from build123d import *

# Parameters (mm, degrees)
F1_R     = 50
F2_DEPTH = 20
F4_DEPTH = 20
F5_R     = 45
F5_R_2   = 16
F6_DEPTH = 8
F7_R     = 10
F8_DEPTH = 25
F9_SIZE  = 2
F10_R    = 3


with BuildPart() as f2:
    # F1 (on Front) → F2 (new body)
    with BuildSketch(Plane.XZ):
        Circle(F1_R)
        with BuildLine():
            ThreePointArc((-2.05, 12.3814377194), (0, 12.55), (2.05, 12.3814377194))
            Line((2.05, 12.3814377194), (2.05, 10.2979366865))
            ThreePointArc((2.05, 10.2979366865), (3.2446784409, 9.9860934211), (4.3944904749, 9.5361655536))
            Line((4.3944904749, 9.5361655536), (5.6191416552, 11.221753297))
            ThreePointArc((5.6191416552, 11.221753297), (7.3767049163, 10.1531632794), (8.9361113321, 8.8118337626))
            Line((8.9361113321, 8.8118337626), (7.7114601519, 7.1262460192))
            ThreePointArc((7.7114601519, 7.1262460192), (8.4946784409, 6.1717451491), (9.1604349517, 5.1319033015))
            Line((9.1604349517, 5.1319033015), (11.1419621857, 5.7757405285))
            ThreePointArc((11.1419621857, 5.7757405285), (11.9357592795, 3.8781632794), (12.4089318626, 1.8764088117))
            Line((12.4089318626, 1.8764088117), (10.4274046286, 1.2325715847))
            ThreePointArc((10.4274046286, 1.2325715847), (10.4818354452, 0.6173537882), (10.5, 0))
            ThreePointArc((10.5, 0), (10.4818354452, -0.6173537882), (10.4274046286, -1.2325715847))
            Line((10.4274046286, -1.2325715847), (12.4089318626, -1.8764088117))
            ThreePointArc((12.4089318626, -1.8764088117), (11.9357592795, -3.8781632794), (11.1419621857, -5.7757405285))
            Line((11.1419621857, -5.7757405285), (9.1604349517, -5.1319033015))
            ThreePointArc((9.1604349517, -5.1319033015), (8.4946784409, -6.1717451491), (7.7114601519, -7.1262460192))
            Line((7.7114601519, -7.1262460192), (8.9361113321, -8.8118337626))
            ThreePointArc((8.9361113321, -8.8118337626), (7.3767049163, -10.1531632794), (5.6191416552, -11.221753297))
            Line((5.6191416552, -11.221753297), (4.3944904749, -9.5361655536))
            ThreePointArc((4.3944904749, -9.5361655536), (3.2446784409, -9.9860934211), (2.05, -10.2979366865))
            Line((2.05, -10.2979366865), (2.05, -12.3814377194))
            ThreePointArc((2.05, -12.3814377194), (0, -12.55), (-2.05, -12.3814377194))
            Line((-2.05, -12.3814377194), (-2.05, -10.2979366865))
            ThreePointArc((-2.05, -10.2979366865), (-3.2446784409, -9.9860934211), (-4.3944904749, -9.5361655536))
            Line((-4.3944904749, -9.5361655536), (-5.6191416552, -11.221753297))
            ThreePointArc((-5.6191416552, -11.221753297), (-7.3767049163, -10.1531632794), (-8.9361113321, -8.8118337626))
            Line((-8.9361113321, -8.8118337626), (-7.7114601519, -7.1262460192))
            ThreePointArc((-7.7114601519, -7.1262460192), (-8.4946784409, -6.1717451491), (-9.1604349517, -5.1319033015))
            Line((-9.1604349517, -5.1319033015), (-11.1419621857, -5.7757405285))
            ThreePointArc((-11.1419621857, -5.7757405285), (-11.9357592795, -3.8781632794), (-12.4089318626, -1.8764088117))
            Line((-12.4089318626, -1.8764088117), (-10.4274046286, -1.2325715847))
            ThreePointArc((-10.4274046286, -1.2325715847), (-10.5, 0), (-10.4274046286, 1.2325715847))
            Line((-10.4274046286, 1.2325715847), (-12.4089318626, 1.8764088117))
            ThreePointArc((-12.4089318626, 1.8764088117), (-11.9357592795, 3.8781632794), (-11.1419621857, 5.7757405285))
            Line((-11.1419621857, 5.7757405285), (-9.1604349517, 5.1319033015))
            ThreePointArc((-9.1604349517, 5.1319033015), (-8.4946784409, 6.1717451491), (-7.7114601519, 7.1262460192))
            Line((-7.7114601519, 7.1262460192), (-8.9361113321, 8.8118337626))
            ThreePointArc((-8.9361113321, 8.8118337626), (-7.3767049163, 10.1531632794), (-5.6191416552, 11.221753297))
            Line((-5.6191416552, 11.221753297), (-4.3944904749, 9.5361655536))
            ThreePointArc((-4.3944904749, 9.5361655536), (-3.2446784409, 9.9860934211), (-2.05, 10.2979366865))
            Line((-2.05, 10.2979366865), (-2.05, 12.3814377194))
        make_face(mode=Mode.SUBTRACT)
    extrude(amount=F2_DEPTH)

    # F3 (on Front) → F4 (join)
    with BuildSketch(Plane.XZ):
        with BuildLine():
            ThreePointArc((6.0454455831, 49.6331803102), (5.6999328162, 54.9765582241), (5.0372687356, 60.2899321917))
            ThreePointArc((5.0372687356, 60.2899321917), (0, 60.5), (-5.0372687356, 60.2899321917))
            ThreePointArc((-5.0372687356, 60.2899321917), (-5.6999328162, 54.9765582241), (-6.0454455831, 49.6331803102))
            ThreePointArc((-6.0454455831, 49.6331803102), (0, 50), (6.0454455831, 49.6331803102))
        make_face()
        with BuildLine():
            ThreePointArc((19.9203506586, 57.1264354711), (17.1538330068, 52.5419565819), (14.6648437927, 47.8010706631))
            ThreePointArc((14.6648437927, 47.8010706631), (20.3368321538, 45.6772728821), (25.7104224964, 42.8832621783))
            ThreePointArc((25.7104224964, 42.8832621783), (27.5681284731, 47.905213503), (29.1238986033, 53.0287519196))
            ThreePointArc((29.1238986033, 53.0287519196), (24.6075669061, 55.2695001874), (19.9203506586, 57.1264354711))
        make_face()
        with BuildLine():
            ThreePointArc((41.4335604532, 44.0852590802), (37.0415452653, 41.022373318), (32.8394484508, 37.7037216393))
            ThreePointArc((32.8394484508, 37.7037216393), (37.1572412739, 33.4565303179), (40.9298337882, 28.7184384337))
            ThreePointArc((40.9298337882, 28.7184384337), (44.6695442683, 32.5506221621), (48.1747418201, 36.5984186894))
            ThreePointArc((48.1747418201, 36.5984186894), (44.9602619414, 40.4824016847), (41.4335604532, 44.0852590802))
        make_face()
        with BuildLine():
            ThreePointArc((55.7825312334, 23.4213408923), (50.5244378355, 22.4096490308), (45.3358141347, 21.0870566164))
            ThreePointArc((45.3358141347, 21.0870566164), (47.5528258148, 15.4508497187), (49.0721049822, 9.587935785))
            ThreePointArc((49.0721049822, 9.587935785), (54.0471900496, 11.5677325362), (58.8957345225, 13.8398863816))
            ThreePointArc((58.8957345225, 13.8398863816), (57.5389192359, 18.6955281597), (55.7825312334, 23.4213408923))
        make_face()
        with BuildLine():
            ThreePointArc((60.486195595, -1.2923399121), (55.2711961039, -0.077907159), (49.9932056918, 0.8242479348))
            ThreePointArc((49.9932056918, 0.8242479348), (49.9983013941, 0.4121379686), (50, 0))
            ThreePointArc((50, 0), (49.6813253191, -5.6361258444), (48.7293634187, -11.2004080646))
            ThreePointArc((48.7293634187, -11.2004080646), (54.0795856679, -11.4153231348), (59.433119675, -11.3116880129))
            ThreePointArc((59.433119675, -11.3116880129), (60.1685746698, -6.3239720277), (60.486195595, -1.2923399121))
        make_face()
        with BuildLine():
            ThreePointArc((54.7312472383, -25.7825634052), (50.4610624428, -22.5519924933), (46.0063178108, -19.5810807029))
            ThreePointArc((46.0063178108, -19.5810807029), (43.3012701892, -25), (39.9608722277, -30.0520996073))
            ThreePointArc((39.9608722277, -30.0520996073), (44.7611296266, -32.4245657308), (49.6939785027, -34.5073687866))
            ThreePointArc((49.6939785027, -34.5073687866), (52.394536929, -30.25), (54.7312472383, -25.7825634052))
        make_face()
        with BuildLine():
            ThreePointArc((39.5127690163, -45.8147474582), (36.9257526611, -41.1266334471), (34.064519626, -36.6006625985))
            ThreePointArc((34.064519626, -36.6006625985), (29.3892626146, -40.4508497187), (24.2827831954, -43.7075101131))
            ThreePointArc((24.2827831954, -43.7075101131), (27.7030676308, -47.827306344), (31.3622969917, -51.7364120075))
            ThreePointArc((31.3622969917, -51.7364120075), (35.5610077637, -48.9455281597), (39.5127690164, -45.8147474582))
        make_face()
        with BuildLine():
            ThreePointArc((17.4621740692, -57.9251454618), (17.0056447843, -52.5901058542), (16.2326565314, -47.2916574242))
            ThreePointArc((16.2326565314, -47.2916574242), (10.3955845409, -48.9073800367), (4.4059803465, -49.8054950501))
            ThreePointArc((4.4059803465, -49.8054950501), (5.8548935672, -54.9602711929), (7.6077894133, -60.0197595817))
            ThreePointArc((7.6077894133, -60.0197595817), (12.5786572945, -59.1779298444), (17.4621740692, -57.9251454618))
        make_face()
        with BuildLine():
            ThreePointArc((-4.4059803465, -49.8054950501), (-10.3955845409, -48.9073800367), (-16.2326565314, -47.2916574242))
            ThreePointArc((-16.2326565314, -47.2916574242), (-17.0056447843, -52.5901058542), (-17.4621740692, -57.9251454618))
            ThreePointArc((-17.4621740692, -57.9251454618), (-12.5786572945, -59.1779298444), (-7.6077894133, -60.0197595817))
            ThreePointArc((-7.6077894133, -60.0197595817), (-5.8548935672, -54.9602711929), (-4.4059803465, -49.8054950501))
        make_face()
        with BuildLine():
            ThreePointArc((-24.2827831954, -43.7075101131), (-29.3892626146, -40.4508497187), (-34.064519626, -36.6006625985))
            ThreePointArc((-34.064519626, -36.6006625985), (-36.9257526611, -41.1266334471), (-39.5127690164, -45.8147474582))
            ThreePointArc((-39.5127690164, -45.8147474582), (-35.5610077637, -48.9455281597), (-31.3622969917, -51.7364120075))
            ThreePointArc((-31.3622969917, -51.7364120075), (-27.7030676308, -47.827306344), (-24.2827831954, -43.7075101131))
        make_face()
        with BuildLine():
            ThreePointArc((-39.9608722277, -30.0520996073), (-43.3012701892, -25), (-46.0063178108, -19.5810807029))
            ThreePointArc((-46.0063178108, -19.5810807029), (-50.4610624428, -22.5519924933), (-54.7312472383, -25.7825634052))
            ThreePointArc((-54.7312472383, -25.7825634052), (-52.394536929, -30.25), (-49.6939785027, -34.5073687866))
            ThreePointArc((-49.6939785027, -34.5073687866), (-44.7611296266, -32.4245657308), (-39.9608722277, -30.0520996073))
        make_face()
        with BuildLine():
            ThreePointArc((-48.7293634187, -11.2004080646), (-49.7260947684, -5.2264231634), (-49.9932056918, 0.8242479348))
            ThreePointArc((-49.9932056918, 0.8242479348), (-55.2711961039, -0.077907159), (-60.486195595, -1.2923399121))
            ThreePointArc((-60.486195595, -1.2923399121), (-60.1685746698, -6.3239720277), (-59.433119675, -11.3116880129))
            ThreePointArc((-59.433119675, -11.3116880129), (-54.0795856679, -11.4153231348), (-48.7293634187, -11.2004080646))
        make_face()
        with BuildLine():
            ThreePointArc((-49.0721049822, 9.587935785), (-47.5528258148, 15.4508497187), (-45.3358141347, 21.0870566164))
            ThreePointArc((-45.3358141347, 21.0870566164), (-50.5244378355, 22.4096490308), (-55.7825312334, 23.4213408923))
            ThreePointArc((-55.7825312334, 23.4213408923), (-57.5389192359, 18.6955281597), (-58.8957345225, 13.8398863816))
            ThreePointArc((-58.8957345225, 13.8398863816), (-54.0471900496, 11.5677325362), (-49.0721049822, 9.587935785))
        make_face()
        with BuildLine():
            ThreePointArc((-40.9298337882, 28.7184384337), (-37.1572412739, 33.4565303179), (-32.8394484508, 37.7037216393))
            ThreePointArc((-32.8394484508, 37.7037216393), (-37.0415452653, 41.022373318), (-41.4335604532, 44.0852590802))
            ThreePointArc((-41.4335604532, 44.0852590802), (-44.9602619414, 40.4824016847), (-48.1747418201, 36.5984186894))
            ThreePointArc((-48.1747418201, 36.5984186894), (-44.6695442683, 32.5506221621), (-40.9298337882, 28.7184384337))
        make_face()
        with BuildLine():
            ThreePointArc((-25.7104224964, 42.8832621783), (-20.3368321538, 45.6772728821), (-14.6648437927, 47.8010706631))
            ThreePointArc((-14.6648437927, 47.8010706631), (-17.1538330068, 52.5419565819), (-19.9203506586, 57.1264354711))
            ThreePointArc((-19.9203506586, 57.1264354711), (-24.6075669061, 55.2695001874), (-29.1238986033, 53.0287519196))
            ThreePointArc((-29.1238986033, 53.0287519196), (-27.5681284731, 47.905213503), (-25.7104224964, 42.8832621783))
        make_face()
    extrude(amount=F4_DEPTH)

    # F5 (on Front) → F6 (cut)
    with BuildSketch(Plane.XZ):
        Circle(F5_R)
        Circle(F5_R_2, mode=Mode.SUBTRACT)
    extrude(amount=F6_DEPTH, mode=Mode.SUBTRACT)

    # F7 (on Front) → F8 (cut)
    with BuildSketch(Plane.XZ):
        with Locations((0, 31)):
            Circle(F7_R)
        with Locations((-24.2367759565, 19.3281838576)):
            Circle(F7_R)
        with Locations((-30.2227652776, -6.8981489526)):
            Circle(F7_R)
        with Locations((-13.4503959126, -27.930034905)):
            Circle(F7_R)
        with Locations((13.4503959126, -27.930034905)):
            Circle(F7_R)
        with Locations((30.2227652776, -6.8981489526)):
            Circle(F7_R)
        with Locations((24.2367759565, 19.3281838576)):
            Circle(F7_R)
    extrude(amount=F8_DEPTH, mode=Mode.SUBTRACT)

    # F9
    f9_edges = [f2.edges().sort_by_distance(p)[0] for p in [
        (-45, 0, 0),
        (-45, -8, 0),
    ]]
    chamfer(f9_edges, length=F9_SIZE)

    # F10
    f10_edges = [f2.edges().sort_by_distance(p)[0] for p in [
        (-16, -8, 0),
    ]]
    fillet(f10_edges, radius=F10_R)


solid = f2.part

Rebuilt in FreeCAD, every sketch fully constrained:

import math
import FreeCAD as App
import Part
import Sketcher

V = App.Vector
Q = App.Units.Quantity


def edges_at(feature, points):
    """Names of the edges that pass closest to the given points."""
    edges = feature.Shape.Edges
    near = lambda p: min(range(len(edges)), key=lambda i: edges[i].distToShape(Part.Vertex(*p))[0])
    return sorted({f"Edge{near(p) + 1}" for p in points})

doc = App.newDocument("Part")
body = doc.addObject("PartDesign::Body", "Body")

# Sketch on XZ plane
sketch1 = body.newObject("Sketcher::SketchObject", "Sketch")
sketch1.AttachmentSupport = (doc.getObject("XZ_Plane"), [""])
sketch1.MapMode = "FlatFace"
sketch1.addGeometry([
    Part.Circle(V(0, 0, 0), V(0, 0, 1), 50),  # 0
    Part.LineSegment(V(-2, 10.3, 0), V(-2, 12.4, 0)),  # 1
    Part.ArcOfCircle(Part.Circle(V(0, 0, 0), V(0, 0, 1), 12.5), math.radians(80.6), math.radians(99.4)),  # 2
    Part.LineSegment(V(2, 12.4, 0), V(2, 10.3, 0)),  # 3
    Part.ArcOfCircle(Part.Circle(V(0, 0, 0), V(0, 0, 1), 10.5), math.radians(65.26), math.radians(78.74)),  # 4
    Part.LineSegment(V(4.4, 9.5, 0), V(5.6, 11.2, 0)),  # 5
    Part.ArcOfCircle(Part.Circle(V(0, 0, 0), V(0, 0, 1), 12.5), math.radians(44.6), math.radians(63.4)),  # 6
    Part.LineSegment(V(8.9, 8.8, 0), V(7.7, 7.1, 0)),  # 7
    Part.ArcOfCircle(Part.Circle(V(0, 0, 0), V(0, 0, 1), 10.5), math.radians(29.26), math.radians(42.74)),  # 8
    Part.LineSegment(V(9.2, 5.1, 0), V(11.1, 5.8, 0)),  # 9
    Part.ArcOfCircle(Part.Circle(V(0, 0, 0), V(0, 0, 1), 12.6), math.radians(8.6), math.radians(27.4)),  # 10
    Part.LineSegment(V(12.4, 1.9, 0), V(10.4, 1.2, 0)),  # 11
    Part.ArcOfCircle(Part.Circle(V(0, 0, 0), V(0, 0, 1), 10.5), math.radians(0), math.radians(6.74)),  # 12
    Part.ArcOfCircle(Part.Circle(V(0, 0, 0), V(0, 0, 1), 10.5), math.radians(-6.74), math.radians(0)),  # 13
    Part.LineSegment(V(10.4, -1.2, 0), V(12.4, -1.9, 0)),  # 14
    Part.ArcOfCircle(Part.Circle(V(0, 0, 0), V(0, 0, 1), 12.6), math.radians(-27.4), math.radians(-8.6)),  # 15
    Part.LineSegment(V(11.1, -5.8, 0), V(9.2, -5.1, 0)),  # 16
    Part.ArcOfCircle(Part.Circle(V(0, 0, 0), V(0, 0, 1), 10.5), math.radians(-42.74), math.radians(-29.26)),  # 17
    Part.LineSegment(V(7.7, -7.1, 0), V(8.9, -8.8, 0)),  # 18
    Part.ArcOfCircle(Part.Circle(V(0, 0, 0), V(0, 0, 1), 12.5), math.radians(-63.4), math.radians(-44.6)),  # 19
    Part.LineSegment(V(5.6, -11.2, 0), V(4.4, -9.5, 0)),  # 20
    Part.ArcOfCircle(Part.Circle(V(0, 0, 0), V(0, 0, 1), 10.5), math.radians(-78.74), math.radians(-65.26)),  # 21
    Part.LineSegment(V(2, -10.3, 0), V(2, -12.4, 0)),  # 22
    Part.ArcOfCircle(Part.Circle(V(0, 0, 0), V(0, 0, 1), 12.5), math.radians(-99.4), math.radians(-80.6)),  # 23
    Part.LineSegment(V(-2, -12.4, 0), V(-2, -10.3, 0)),  # 24
    Part.ArcOfCircle(Part.Circle(V(0, 0, 0), V(0, 0, 1), 10.5), math.radians(-114.74), math.radians(-101.26)),  # 25
    Part.LineSegment(V(-4.4, -9.5, 0), V(-5.6, -11.2, 0)),  # 26
    Part.ArcOfCircle(Part.Circle(V(0, 0, 0), V(0, 0, 1), 12.5), math.radians(-135.4), math.radians(-116.6)),  # 27
    Part.LineSegment(V(-8.9, -8.8, 0), V(-7.7, -7.1, 0)),  # 28
    Part.ArcOfCircle(Part.Circle(V(0, 0, 0), V(0, 0, 1), 10.5), math.radians(-150.74), math.radians(-137.26)),  # 29
    Part.LineSegment(V(-9.2, -5.1, 0), V(-11.1, -5.8, 0)),  # 30
    Part.ArcOfCircle(Part.Circle(V(0, 0, 0), V(0, 0, 1), 12.6), math.radians(-171.4), math.radians(-152.6)),  # 31
    Part.LineSegment(V(-12.4, -1.9, 0), V(-10.4, -1.2, 0)),  # 32
    Part.ArcOfCircle(Part.Circle(V(0, 0, 0), V(0, 0, 1), 10.5), math.radians(173.26), math.radians(186.74)),  # 33
    Part.LineSegment(V(-10.4, 1.2, 0), V(-12.4, 1.9, 0)),  # 34
    Part.ArcOfCircle(Part.Circle(V(0, 0, 0), V(0, 0, 1), 12.6), math.radians(152.6), math.radians(171.4)),  # 35
    Part.LineSegment(V(-11.1, 5.8, 0), V(-9.2, 5.1, 0)),  # 36
    Part.ArcOfCircle(Part.Circle(V(0, 0, 0), V(0, 0, 1), 10.5), math.radians(137.26), math.radians(150.74)),  # 37
    Part.LineSegment(V(-7.7, 7.1, 0), V(-8.9, 8.8, 0)),  # 38
    Part.ArcOfCircle(Part.Circle(V(0, 0, 0), V(0, 0, 1), 12.5), math.radians(116.6), math.radians(135.4)),  # 39
    Part.LineSegment(V(-5.6, 11.2, 0), V(-4.4, 9.5, 0)),  # 40
    Part.ArcOfCircle(Part.Circle(V(0, 0, 0), V(0, 0, 1), 10.5), math.radians(101.26), math.radians(114.74)),  # 41
], False)
sketch1.addConstraint([
    Sketcher.Constraint("Coincident", 1, 2, 2, 2),
    Sketcher.Constraint("Coincident", 2, 1, 3, 1),
    Sketcher.Constraint("Coincident", 3, 2, 4, 2),
    Sketcher.Constraint("Coincident", 4, 1, 5, 1),
    Sketcher.Constraint("Coincident", 5, 2, 6, 2),
    Sketcher.Constraint("Coincident", 6, 1, 7, 1),
    Sketcher.Constraint("Coincident", 7, 2, 8, 2),
    Sketcher.Constraint("Coincident", 8, 1, 9, 1),
    Sketcher.Constraint("Coincident", 9, 2, 10, 2),
    Sketcher.Constraint("Coincident", 10, 1, 11, 1),
    Sketcher.Constraint("Coincident", 11, 2, 12, 2),
    Sketcher.Constraint("Tangent", 12, 1, 13, 2),
    Sketcher.Constraint("Coincident", 13, 1, 14, 1),
    Sketcher.Constraint("Coincident", 14, 2, 15, 2),
    Sketcher.Constraint("Coincident", 15, 1, 16, 1),
    Sketcher.Constraint("Coincident", 16, 2, 17, 2),
    Sketcher.Constraint("Coincident", 17, 1, 18, 1),
    Sketcher.Constraint("Coincident", 18, 2, 19, 2),
    Sketcher.Constraint("Coincident", 19, 1, 20, 1),
    Sketcher.Constraint("Coincident", 20, 2, 21, 2),
    Sketcher.Constraint("Coincident", 21, 1, 22, 1),
    Sketcher.Constraint("Coincident", 22, 2, 23, 2),
    Sketcher.Constraint("Coincident", 23, 1, 24, 1),
    Sketcher.Constraint("Coincident", 24, 2, 25, 2),
    Sketcher.Constraint("Coincident", 25, 1, 26, 1),
    Sketcher.Constraint("Coincident", 26, 2, 27, 2),
    Sketcher.Constraint("Coincident", 27, 1, 28, 1),
    Sketcher.Constraint("Coincident", 28, 2, 29, 2),
    Sketcher.Constraint("Coincident", 29, 1, 30, 1),
    Sketcher.Constraint("Coincident", 30, 2, 31, 2),
    Sketcher.Constraint("Coincident", 31, 1, 32, 1),
    Sketcher.Constraint("Coincident", 32, 2, 33, 2),
    Sketcher.Constraint("Coincident", 33, 1, 34, 1),
    Sketcher.Constraint("Coincident", 34, 2, 35, 2),
    Sketcher.Constraint("Coincident", 35, 1, 36, 1),
    Sketcher.Constraint("Coincident", 36, 2, 37, 2),
    Sketcher.Constraint("Coincident", 37, 1, 38, 1),
    Sketcher.Constraint("Coincident", 38, 2, 39, 2),
    Sketcher.Constraint("Coincident", 39, 1, 40, 1),
    Sketcher.Constraint("Coincident", 40, 2, 41, 2),
    Sketcher.Constraint("Coincident", 41, 1, 1, 1),
    Sketcher.Constraint("Vertical", 1),
    Sketcher.Constraint("Vertical", 3),
    Sketcher.Constraint("Vertical", 22),
    Sketcher.Constraint("Vertical", 24),
    Sketcher.Constraint("Coincident", 0, 3, -1, 1),
    Sketcher.Constraint("Coincident", 2, 3, -1, 1),
    Sketcher.Constraint("Coincident", 4, 3, -1, 1),
    Sketcher.Constraint("Coincident", 6, 3, -1, 1),
    Sketcher.Constraint("Coincident", 8, 3, -1, 1),
    Sketcher.Constraint("Coincident", 10, 3, -1, 1),
    Sketcher.Constraint("Coincident", 12, 3, -1, 1),
    Sketcher.Constraint("Coincident", 15, 3, -1, 1),
    Sketcher.Constraint("Coincident", 17, 3, -1, 1),
    Sketcher.Constraint("Coincident", 19, 3, -1, 1),
    Sketcher.Constraint("Coincident", 21, 3, -1, 1),
    Sketcher.Constraint("Coincident", 23, 3, -1, 1),
    Sketcher.Constraint("Coincident", 25, 3, -1, 1),
    Sketcher.Constraint("Coincident", 27, 3, -1, 1),
    Sketcher.Constraint("Coincident", 29, 3, -1, 1),
    Sketcher.Constraint("Coincident", 31, 3, -1, 1),
    Sketcher.Constraint("Coincident", 33, 3, -1, 1),
    Sketcher.Constraint("Coincident", 35, 3, -1, 1),
    Sketcher.Constraint("Coincident", 37, 3, -1, 1),
    Sketcher.Constraint("Coincident", 39, 3, -1, 1),
    Sketcher.Constraint("Coincident", 41, 3, -1, 1),
    Sketcher.Constraint("Equal", 2, 6),
    Sketcher.Constraint("Equal", 4, 8),
    Sketcher.Constraint("Equal", 6, 10),
    Sketcher.Constraint("Equal", 8, 12),
    Sketcher.Constraint("Equal", 12, 13),
    Sketcher.Constraint("Equal", 10, 15),
    Sketcher.Constraint("Equal", 13, 17),
    Sketcher.Constraint("Equal", 15, 19),
    Sketcher.Constraint("Equal", 17, 21),
    Sketcher.Constraint("Equal", 19, 23),
    Sketcher.Constraint("Equal", 21, 25),
    Sketcher.Constraint("Equal", 23, 27),
    Sketcher.Constraint("Equal", 25, 29),
    Sketcher.Constraint("Equal", 27, 31),
    Sketcher.Constraint("Equal", 29, 33),
    Sketcher.Constraint("Equal", 31, 35),
    Sketcher.Constraint("Equal", 33, 37),
    Sketcher.Constraint("Equal", 35, 39),
    Sketcher.Constraint("Equal", 37, 41),
    Sketcher.Constraint("PointOnObject", 12, 1, -1),
    Sketcher.Constraint("Parallel", 5, 7),
    Sketcher.Constraint("Parallel", 9, 11),
    Sketcher.Constraint("Parallel", 14, 16),
    Sketcher.Constraint("Parallel", 18, 20),
    Sketcher.Constraint("Parallel", 7, 26),
    Sketcher.Constraint("Parallel", 26, 28),
    Sketcher.Constraint("Parallel", 11, 30),
    Sketcher.Constraint("Parallel", 30, 32),
    Sketcher.Constraint("Parallel", 16, 34),
    Sketcher.Constraint("Parallel", 34, 36),
    Sketcher.Constraint("Parallel", 20, 38),
    Sketcher.Constraint("Parallel", 38, 40),
    Sketcher.Constraint("Horizontal", 1, 2, 2, 1),
    Sketcher.Constraint("Horizontal", 22, 2, 23, 1),
    Sketcher.Constraint("Horizontal", 20, 2, 25, 1),
    Sketcher.Constraint("Horizontal", 19, 1, 26, 2),
    Sketcher.Constraint("Horizontal", 18, 2, 27, 1),
    Sketcher.Constraint("Horizontal", 16, 2, 29, 1),
    Sketcher.Constraint("Horizontal", 15, 1, 30, 2),
    Sketcher.Constraint("Horizontal", 14, 2, 31, 1),
    Sketcher.Constraint("Horizontal", 11, 2, 33, 1),
    Sketcher.Constraint("Horizontal", 9, 2, 35, 1),
    Sketcher.Constraint("Horizontal", 7, 2, 37, 1),
    Sketcher.Constraint("Horizontal", 5, 2, 39, 1),
    Sketcher.Constraint("Vertical", 11, 2, 13, 1),
    Sketcher.Constraint("Vertical", 9, 2, 15, 1),
    Sketcher.Constraint("Vertical", 7, 2, 17, 1),
    Sketcher.Constraint("Vertical", 5, 2, 19, 1),
    Sketcher.Constraint("Vertical", 3, 2, 21, 1),
    Sketcher.Constraint("Equal", 5, 7),
    Sketcher.Constraint("Equal", 7, 9),
    Sketcher.Constraint("Equal", 9, 11),
    Sketcher.Constraint("Diameter", 0, 100.0),
    Sketcher.Constraint("Radius", 4, 10.5),
    Sketcher.Constraint("Angle", 5, Q("54 deg")),
    Sketcher.Constraint("Angle", 9, Q("18 deg")),
    Sketcher.Constraint("Radius", 2, 12.55),
    Sketcher.Constraint("DistanceX", 1, 2, -1, 1, 2.05),
    Sketcher.Constraint("Distance", 5, 2.083501),
])
pad1 = body.newObject("PartDesign::Pad", "Pad")
pad1.Profile = sketch1
pad1.Length = 20

# Sketch on XZ plane
sketch2 = body.newObject("Sketcher::SketchObject", "Sketch001")
sketch2.AttachmentSupport = (doc.getObject("XZ_Plane"), [""])
sketch2.MapMode = "FlatFace"
sketch2.addGeometry([
    Part.ArcOfCircle(Part.Circle(V(-83.9, 46.5, 0), V(0, 0, 1), 90), math.radians(2), math.radians(8.81)),  # 0
    Part.ArcOfCircle(Part.Circle(V(0, 0, 0), V(0, 0, 1), 60.5), math.radians(85.22), math.radians(94.78)),  # 1
    Part.ArcOfCircle(Part.Circle(V(83.9, 46.5, 0), V(0, 0, 1), 90), math.radians(171.19), math.radians(178)),  # 2
    Part.ArcOfCircle(Part.Circle(V(0, 0, 0), V(0, 0, 1), 50), math.radians(83.06), math.radians(96.94)),  # 3
    Part.ArcOfCircle(Part.Circle(V(95.6, 8.4, 0), V(0, 0, 1), 90), math.radians(147.19), math.radians(154)),  # 4
    Part.ArcOfCircle(Part.Circle(V(0, 0, 0), V(0, 0, 1), 50), math.radians(59.06), math.radians(72.94)),  # 5
    Part.ArcOfCircle(Part.Circle(V(-57.7, 76.6, 0), V(0, 0, 1), 90), math.radians(-22), math.radians(-15.19)),  # 6
    Part.ArcOfCircle(Part.Circle(V(0, 0, 0), V(0, 0, 1), 60.5), math.radians(61.22), math.radians(70.78)),  # 7
    Part.ArcOfCircle(Part.Circle(V(90.7, -31.2, 0), V(0, 0, 1), 90), math.radians(123.19), math.radians(130)),  # 8
    Part.ArcOfCircle(Part.Circle(V(0, 0, 0), V(0, 0, 1), 50), math.radians(35.06), math.radians(48.94)),  # 9
    Part.ArcOfCircle(Part.Circle(V(-21.6, 93.5, 0), V(0, 0, 1), 90), math.radians(-46), math.radians(-39.19)),  # 10
    Part.ArcOfCircle(Part.Circle(V(0, 0, 0), V(0, 0, 1), 60.5), math.radians(37.22), math.radians(46.78)),  # 11
    Part.ArcOfCircle(Part.Circle(V(70.2, -65.4, 0), V(0, 0, 1), 90), math.radians(99.19), math.radians(106)),  # 12
    Part.ArcOfCircle(Part.Circle(V(0, 0, 0), V(0, 0, 1), 50), math.radians(11.06), math.radians(24.94)),  # 13
    Part.ArcOfCircle(Part.Circle(V(18.3, 94.2, 0), V(0, 0, 1), 90), math.radians(-70), math.radians(-63.19)),  # 14
    Part.ArcOfCircle(Part.Circle(V(0, 0, 0), V(0, 0, 1), 60.5), math.radians(13.22), math.radians(22.78)),  # 15
    Part.ArcOfCircle(Part.Circle(V(37.5, -88.3, 0), V(0, 0, 1), 90), math.radians(75.19), math.radians(82)),  # 16
    Part.ArcOfCircle(Part.Circle(V(0, 0, 0), V(0, 0, 1), 50), math.radians(0), math.radians(0.94)),  # 17
    Part.ArcOfCircle(Part.Circle(V(0, 0, 0), V(0, 0, 1), 50), math.radians(-12.94), math.radians(0)),  # 18
    Part.ArcOfCircle(Part.Circle(V(55, 78.6, 0), V(0, 0, 1), 90), math.radians(-94), math.radians(-87.19)),  # 19
    Part.ArcOfCircle(Part.Circle(V(0, 0, 0), V(0, 0, 1), 60.5), math.radians(-10.78), math.radians(-1.22)),  # 20
    Part.ArcOfCircle(Part.Circle(V(-1.7, -95.9, 0), V(0, 0, 1), 90), math.radians(51.19), math.radians(58)),  # 21
    Part.ArcOfCircle(Part.Circle(V(0, 0, 0), V(0, 0, 1), 50), math.radians(-36.94), math.radians(-23.06)),  # 22
    Part.ArcOfCircle(Part.Circle(V(82.2, 49.4, 0), V(0, 0, 1), 90), math.radians(-118), math.radians(-111.19)),  # 23
    Part.ArcOfCircle(Part.Circle(V(0, 0, 0), V(0, 0, 1), 60.5), math.radians(-34.78), math.radians(-25.22)),  # 24
    Part.ArcOfCircle(Part.Circle(V(-40.5, -86.9, 0), V(0, 0, 1), 90), math.radians(27.19), math.radians(34)),  # 25
    Part.ArcOfCircle(Part.Circle(V(0, 0, 0), V(0, 0, 1), 50), math.radians(-60.94), math.radians(-47.06)),  # 26
    Part.ArcOfCircle(Part.Circle(V(95.2, 11.7, 0), V(0, 0, 1), 90), math.radians(-142), math.radians(-135.19)),  # 27
    Part.ArcOfCircle(Part.Circle(V(0, 0, 0), V(0, 0, 1), 60.5), math.radians(-58.78), math.radians(-49.22)),  # 28
    Part.ArcOfCircle(Part.Circle(V(-72.4, -62.9, 0), V(0, 0, 1), 90), math.radians(3.19), math.radians(10)),  # 29
    Part.ArcOfCircle(Part.Circle(V(0, 0, 0), V(0, 0, 1), 50), math.radians(-84.94), math.radians(-71.06)),  # 30
    Part.ArcOfCircle(Part.Circle(V(91.7, -28, 0), V(0, 0, 1), 90), math.radians(-166), math.radians(-159.19)),  # 31
    Part.ArcOfCircle(Part.Circle(V(0, 0, 0), V(0, 0, 1), 60.5), math.radians(-82.78), math.radians(-73.22)),  # 32
    Part.ArcOfCircle(Part.Circle(V(0, 0, 0), V(0, 0, 1), 50), math.radians(-108.94), math.radians(-95.06)),  # 33
    Part.ArcOfCircle(Part.Circle(V(72.4, -62.9, 0), V(0, 0, 1), 90), math.radians(170), math.radians(176.81)),  # 34
    Part.ArcOfCircle(Part.Circle(V(0, 0, 0), V(0, 0, 1), 60.5), math.radians(-106.78), math.radians(-97.22)),  # 35
    Part.ArcOfCircle(Part.Circle(V(-91.7, -28, 0), V(0, 0, 1), 90), math.radians(-20.81), math.radians(-14)),  # 36
    Part.ArcOfCircle(Part.Circle(V(0, 0, 0), V(0, 0, 1), 50), math.radians(-132.94), math.radians(-119.06)),  # 37
    Part.ArcOfCircle(Part.Circle(V(40.5, -86.9, 0), V(0, 0, 1), 90), math.radians(146), math.radians(152.81)),  # 38
    Part.ArcOfCircle(Part.Circle(V(0, 0, 0), V(0, 0, 1), 60.5), math.radians(-130.78), math.radians(-121.22)),  # 39
    Part.ArcOfCircle(Part.Circle(V(-95.2, 11.7, 0), V(0, 0, 1), 90), math.radians(-44.81), math.radians(-38)),  # 40
    Part.ArcOfCircle(Part.Circle(V(0, 0, 0), V(0, 0, 1), 50), math.radians(-156.94), math.radians(-143.06)),  # 41
    Part.ArcOfCircle(Part.Circle(V(1.7, -95.9, 0), V(0, 0, 1), 90), math.radians(122), math.radians(128.81)),  # 42
    Part.ArcOfCircle(Part.Circle(V(0, 0, 0), V(0, 0, 1), 60.5), math.radians(-154.78), math.radians(-145.22)),  # 43
    Part.ArcOfCircle(Part.Circle(V(-82.2, 49.4, 0), V(0, 0, 1), 90), math.radians(-68.81), math.radians(-62)),  # 44
    Part.ArcOfCircle(Part.Circle(V(0, 0, 0), V(0, 0, 1), 50), math.radians(179.06), math.radians(192.94)),  # 45
    Part.ArcOfCircle(Part.Circle(V(-37.5, -88.3, 0), V(0, 0, 1), 90), math.radians(98), math.radians(104.81)),  # 46
    Part.ArcOfCircle(Part.Circle(V(0, 0, 0), V(0, 0, 1), 60.5), math.radians(-178.78), math.radians(-169.22)),  # 47
    Part.ArcOfCircle(Part.Circle(V(-55, 78.6, 0), V(0, 0, 1), 90), math.radians(-92.81), math.radians(-86)),  # 48
    Part.ArcOfCircle(Part.Circle(V(0, 0, 0), V(0, 0, 1), 50), math.radians(155.06), math.radians(168.94)),  # 49
    Part.ArcOfCircle(Part.Circle(V(-70.2, -65.4, 0), V(0, 0, 1), 90), math.radians(74), math.radians(80.81)),  # 50
    Part.ArcOfCircle(Part.Circle(V(0, 0, 0), V(0, 0, 1), 60.5), math.radians(157.22), math.radians(166.78)),  # 51
    Part.ArcOfCircle(Part.Circle(V(-18.3, 94.2, 0), V(0, 0, 1), 90), math.radians(-116.81), math.radians(-110)),  # 52
    Part.ArcOfCircle(Part.Circle(V(0, 0, 0), V(0, 0, 1), 50), math.radians(131.06), math.radians(144.94)),  # 53
    Part.ArcOfCircle(Part.Circle(V(-90.7, -31.2, 0), V(0, 0, 1), 90), math.radians(50), math.radians(56.81)),  # 54
    Part.ArcOfCircle(Part.Circle(V(0, 0, 0), V(0, 0, 1), 60.5), math.radians(133.22), math.radians(142.78)),  # 55
    Part.ArcOfCircle(Part.Circle(V(21.6, 93.5, 0), V(0, 0, 1), 90), math.radians(-140.81), math.radians(-134)),  # 56
    Part.ArcOfCircle(Part.Circle(V(0, 0, 0), V(0, 0, 1), 50), math.radians(107.06), math.radians(120.94)),  # 57
    Part.ArcOfCircle(Part.Circle(V(-95.6, 8.4, 0), V(0, 0, 1), 90), math.radians(26), math.radians(32.81)),  # 58
    Part.ArcOfCircle(Part.Circle(V(0, 0, 0), V(0, 0, 1), 60.5), math.radians(109.22), math.radians(118.78)),  # 59
    Part.ArcOfCircle(Part.Circle(V(57.7, 76.6, 0), V(0, 0, 1), 90), math.radians(-164.81), math.radians(-158)),  # 60
], False)
sketch2.addConstraint([
    Sketcher.Constraint("Coincident", 0, 2, 1, 1),
    Sketcher.Constraint("Coincident", 1, 2, 2, 1),
    Sketcher.Constraint("Coincident", 2, 2, 3, 2),
    Sketcher.Constraint("Coincident", 3, 1, 0, 1),
    Sketcher.Constraint("Coincident", 4, 2, 5, 2),
    Sketcher.Constraint("Coincident", 5, 1, 6, 1),
    Sketcher.Constraint("Coincident", 6, 2, 7, 1),
    Sketcher.Constraint("Coincident", 7, 2, 4, 1),
    Sketcher.Constraint("Coincident", 8, 2, 9, 2),
    Sketcher.Constraint("Coincident", 9, 1, 10, 1),
    Sketcher.Constraint("Coincident", 10, 2, 11, 1),
    Sketcher.Constraint("Coincident", 11, 2, 8, 1),
    Sketcher.Constraint("Coincident", 12, 2, 13, 2),
    Sketcher.Constraint("Coincident", 13, 1, 14, 1),
    Sketcher.Constraint("Coincident", 14, 2, 15, 1),
    Sketcher.Constraint("Coincident", 15, 2, 12, 1),
    Sketcher.Constraint("Coincident", 16, 2, 17, 2),
    Sketcher.Constraint("Tangent", 17, 1, 18, 2),
    Sketcher.Constraint("Coincident", 18, 1, 19, 1),
    Sketcher.Constraint("Coincident", 19, 2, 20, 1),
    Sketcher.Constraint("Coincident", 20, 2, 16, 1),
    Sketcher.Constraint("Coincident", 21, 2, 22, 2),
    Sketcher.Constraint("Coincident", 22, 1, 23, 1),
    Sketcher.Constraint("Coincident", 23, 2, 24, 1),
    Sketcher.Constraint("Coincident", 24, 2, 21, 1),
    Sketcher.Constraint("Coincident", 25, 2, 26, 2),
    Sketcher.Constraint("Coincident", 26, 1, 27, 1),
    Sketcher.Constraint("Coincident", 27, 2, 28, 1),
    Sketcher.Constraint("Coincident", 28, 2, 25, 1),
    Sketcher.Constraint("Coincident", 29, 2, 30, 2),
    Sketcher.Constraint("Coincident", 30, 1, 31, 1),
    Sketcher.Constraint("Coincident", 31, 2, 32, 1),
    Sketcher.Constraint("Coincident", 32, 2, 29, 1),
    Sketcher.Constraint("Coincident", 33, 1, 34, 1),
    Sketcher.Constraint("Coincident", 34, 2, 35, 1),
    Sketcher.Constraint("Coincident", 35, 2, 36, 1),
    Sketcher.Constraint("Coincident", 36, 2, 33, 2),
    Sketcher.Constraint("Coincident", 37, 1, 38, 1),
    Sketcher.Constraint("Coincident", 38, 2, 39, 1),
    Sketcher.Constraint("Coincident", 39, 2, 40, 1),
    Sketcher.Constraint("Coincident", 40, 2, 37, 2),
    Sketcher.Constraint("Coincident", 41, 1, 42, 1),
    Sketcher.Constraint("Coincident", 42, 2, 43, 1),
    Sketcher.Constraint("Coincident", 43, 2, 44, 1),
    Sketcher.Constraint("Coincident", 44, 2, 41, 2),
    Sketcher.Constraint("Coincident", 45, 1, 46, 1),
    Sketcher.Constraint("Coincident", 46, 2, 47, 1),
    Sketcher.Constraint("Coincident", 47, 2, 48, 1),
    Sketcher.Constraint("Coincident", 48, 2, 45, 2),
    Sketcher.Constraint("Coincident", 49, 1, 50, 1),
    Sketcher.Constraint("Coincident", 50, 2, 51, 1),
    Sketcher.Constraint("Coincident", 51, 2, 52, 1),
    Sketcher.Constraint("Coincident", 52, 2, 49, 2),
    Sketcher.Constraint("Coincident", 53, 1, 54, 1),
    Sketcher.Constraint("Coincident", 54, 2, 55, 1),
    Sketcher.Constraint("Coincident", 55, 2, 56, 1),
    Sketcher.Constraint("Coincident", 56, 2, 53, 2),
    Sketcher.Constraint("Coincident", 57, 1, 58, 1),
    Sketcher.Constraint("Coincident", 58, 2, 59, 1),
    Sketcher.Constraint("Coincident", 59, 2, 60, 1),
    Sketcher.Constraint("Coincident", 60, 2, 57, 2),
    Sketcher.Constraint("Coincident", 1, 3, -1, 1),
    Sketcher.Constraint("Coincident", 3, 3, -1, 1),
    Sketcher.Constraint("Coincident", 5, 3, -1, 1),
    Sketcher.Constraint("Coincident", 7, 3, -1, 1),
    Sketcher.Constraint("Coincident", 9, 3, -1, 1),
    Sketcher.Constraint("Coincident", 11, 3, -1, 1),
    Sketcher.Constraint("Coincident", 13, 3, -1, 1),
    Sketcher.Constraint("Coincident", 15, 3, -1, 1),
    Sketcher.Constraint("Coincident", 17, 3, -1, 1),
    Sketcher.Constraint("Coincident", 20, 3, -1, 1),
    Sketcher.Constraint("Coincident", 22, 3, -1, 1),
    Sketcher.Constraint("Coincident", 24, 3, -1, 1),
    Sketcher.Constraint("Coincident", 26, 3, -1, 1),
    Sketcher.Constraint("Coincident", 28, 3, -1, 1),
    Sketcher.Constraint("Coincident", 30, 3, -1, 1),
    Sketcher.Constraint("Coincident", 32, 3, -1, 1),
    Sketcher.Constraint("Coincident", 33, 3, -1, 1),
    Sketcher.Constraint("Coincident", 35, 3, -1, 1),
    Sketcher.Constraint("Coincident", 37, 3, -1, 1),
    Sketcher.Constraint("Coincident", 39, 3, -1, 1),
    Sketcher.Constraint("Coincident", 41, 3, -1, 1),
    Sketcher.Constraint("Coincident", 43, 3, -1, 1),
    Sketcher.Constraint("Coincident", 45, 3, -1, 1),
    Sketcher.Constraint("Coincident", 47, 3, -1, 1),
    Sketcher.Constraint("Coincident", 49, 3, -1, 1),
    Sketcher.Constraint("Coincident", 51, 3, -1, 1),
    Sketcher.Constraint("Coincident", 53, 3, -1, 1),
    Sketcher.Constraint("Coincident", 55, 3, -1, 1),
    Sketcher.Constraint("Coincident", 57, 3, -1, 1),
    Sketcher.Constraint("Coincident", 59, 3, -1, 1),
    Sketcher.Constraint("Equal", 0, 2),
    Sketcher.Constraint("Equal", 2, 4),
    Sketcher.Constraint("Equal", 3, 5),
    Sketcher.Constraint("Equal", 4, 6),
    Sketcher.Constraint("Equal", 1, 7),
    Sketcher.Constraint("Equal", 6, 8),
    Sketcher.Constraint("Equal", 5, 9),
    Sketcher.Constraint("Equal", 8, 10),
    Sketcher.Constraint("Equal", 7, 11),
    Sketcher.Constraint("Equal", 10, 12),
    Sketcher.Constraint("Equal", 9, 13),
    Sketcher.Constraint("Equal", 12, 14),
    Sketcher.Constraint("Equal", 11, 15),
    Sketcher.Constraint("Equal", 14, 16),
    Sketcher.Constraint("Equal", 13, 17),
    Sketcher.Constraint("Equal", 17, 18),
    Sketcher.Constraint("Equal", 16, 19),
    Sketcher.Constraint("Equal", 15, 20),
    Sketcher.Constraint("Equal", 19, 21),
    Sketcher.Constraint("Equal", 18, 22),
    Sketcher.Constraint("Equal", 21, 23),
    Sketcher.Constraint("Equal", 20, 24),
    Sketcher.Constraint("Equal", 23, 25),
    Sketcher.Constraint("Equal", 22, 26),
    Sketcher.Constraint("Equal", 25, 27),
    Sketcher.Constraint("Equal", 24, 28),
    Sketcher.Constraint("Equal", 27, 29),
    Sketcher.Constraint("Equal", 26, 30),
    Sketcher.Constraint("Equal", 29, 31),
    Sketcher.Constraint("Equal", 28, 32),
    Sketcher.Constraint("Equal", 30, 33),
    Sketcher.Constraint("Equal", 31, 34),
    Sketcher.Constraint("Equal", 32, 35),
    Sketcher.Constraint("Equal", 34, 36),
    Sketcher.Constraint("Equal", 33, 37),
    Sketcher.Constraint("Equal", 36, 38),
    Sketcher.Constraint("Equal", 35, 39),
    Sketcher.Constraint("Equal", 38, 40),
    Sketcher.Constraint("Equal", 37, 41),
    Sketcher.Constraint("Equal", 40, 42),
    Sketcher.Constraint("Equal", 39, 43),
    Sketcher.Constraint("Equal", 42, 44),
    Sketcher.Constraint("Equal", 41, 45),
    Sketcher.Constraint("Equal", 44, 46),
    Sketcher.Constraint("Equal", 43, 47),
    Sketcher.Constraint("Equal", 46, 48),
    Sketcher.Constraint("Equal", 45, 49),
    Sketcher.Constraint("Equal", 48, 50),
    Sketcher.Constraint("Equal", 47, 51),
    Sketcher.Constraint("Equal", 50, 52),
    Sketcher.Constraint("Equal", 49, 53),
    Sketcher.Constraint("Equal", 52, 54),
    Sketcher.Constraint("Equal", 51, 55),
    Sketcher.Constraint("Equal", 54, 56),
    Sketcher.Constraint("Equal", 53, 57),
    Sketcher.Constraint("Equal", 56, 58),
    Sketcher.Constraint("Equal", 55, 59),
    Sketcher.Constraint("Equal", 58, 60),
    Sketcher.Constraint("Symmetric", 0, 3, 2, 3, -2),
    Sketcher.Constraint("Symmetric", 29, 3, 34, 3, -2),
    Sketcher.Constraint("Symmetric", 31, 3, 36, 3, -2),
    Sketcher.Constraint("Symmetric", 25, 3, 38, 3, -2),
    Sketcher.Constraint("Symmetric", 27, 3, 40, 3, -2),
    Sketcher.Constraint("Symmetric", 21, 3, 42, 3, -2),
    Sketcher.Constraint("Symmetric", 23, 3, 44, 3, -2),
    Sketcher.Constraint("Symmetric", 16, 3, 46, 3, -2),
    Sketcher.Constraint("Symmetric", 19, 3, 48, 3, -2),
    Sketcher.Constraint("Symmetric", 12, 3, 50, 3, -2),
    Sketcher.Constraint("Symmetric", 14, 3, 52, 3, -2),
    Sketcher.Constraint("Symmetric", 8, 3, 54, 3, -2),
    Sketcher.Constraint("Symmetric", 10, 3, 56, 3, -2),
    Sketcher.Constraint("Symmetric", 4, 3, 58, 3, -2),
    Sketcher.Constraint("Symmetric", 6, 3, 60, 3, -2),
    Sketcher.Constraint("PointOnObject", 17, 1, -1),
    Sketcher.Constraint("Radius", 0, 90.0),
    Sketcher.Constraint("Radius", 3, 50.0),
    Sketcher.Constraint("Radius", 1, 60.5),
    Sketcher.Constraint("DistanceX", 0, 3, -1, 1, 83.9),
    Sketcher.Constraint("DistanceY", -1, 1, 0, 3, 46.5),
    Sketcher.Constraint("DistanceX", -1, 1, 6, 2, 29.123899),
    Sketcher.Constraint("DistanceY", 22, 1, -1, 1, 30.0521),
    Sketcher.Constraint("DistanceY", -1, 1, 4, 3, 8.354659),
    Sketcher.Constraint("DistanceX", 6, 3, -1, 1, 57.73321),
    Sketcher.Constraint("DistanceY", 12, 3, -1, 1, 65.424351),
    Sketcher.Constraint("DistanceY", -1, 1, 14, 3, 94.162932),
    Sketcher.Constraint("DistanceX", -1, 1, 16, 3, 37.47533),
    Sketcher.Constraint("DistanceY", 16, 3, -1, 1, 88.300961),
    Sketcher.Constraint("DistanceX", 21, 3, -1, 1, 1.679819),
    Sketcher.Constraint("DistanceY", 21, 3, -1, 1, 95.909531),
    Sketcher.Constraint("DistanceX", -1, 1, 23, 3, 82.220181),
    Sketcher.Constraint("DistanceX", 25, 3, -1, 1, 40.544512),
    Sketcher.Constraint("DistanceX", -1, 1, 27, 3, 95.20854),
    Sketcher.Constraint("DistanceX", 29, 3, -1, 1, 72.39869),
    Sketcher.Constraint("DistanceY", -1, 1, 4, 2, 47.801071),
    Sketcher.Constraint("DistanceX", -1, 1, 8, 2, 32.839448),
    Sketcher.Constraint("DistanceY", -1, 1, 9, 1, 28.718438),
    Sketcher.Constraint("DistanceY", 18, 1, -1, 1, 11.200408),
    Sketcher.Constraint("DistanceY", 19, 2, -1, 1, 11.311688),
    Sketcher.Constraint("DistanceX", -1, 1, 25, 2, 34.06452),
    Sketcher.Constraint("DistanceY", 26, 1, -1, 1, 43.70751),
    Sketcher.Constraint("DistanceX", -1, 1, 30, 1, 4.40598),
    Sketcher.Constraint("DistanceX", -1, 1, 31, 2, 7.607789),
    Sketcher.Constraint("DistanceY", -1, 1, 50, 2, 23.421341),
    Sketcher.Constraint("DistanceX", -1, 1, 8, 3, 90.696292),
    Sketcher.Constraint("DistanceX", 10, 3, -1, 1, 21.583823),
    Sketcher.Constraint("DistanceX", -1, 1, 14, 3, 18.297602),
    Sketcher.Constraint("DistanceY", 29, 3, -1, 1, 62.927654),
])
pad2 = body.newObject("PartDesign::Pad", "Pad001")
pad2.Profile = sketch2
pad2.Length = 20

# Sketch on XZ plane
sketch3 = body.newObject("Sketcher::SketchObject", "Sketch002")
sketch3.AttachmentSupport = (doc.getObject("XZ_Plane"), [""])
sketch3.MapMode = "FlatFace"
sketch3.addGeometry([
    Part.Circle(V(0, 0, 0), V(0, 0, 1), 45),
    Part.Circle(V(0, 0, 0), V(0, 0, 1), 16),
], False)
sketch3.addConstraint([
    Sketcher.Constraint("Coincident", 0, 3, -1, 1),
    Sketcher.Constraint("Coincident", 1, 3, -1, 1),
    Sketcher.Constraint("Diameter", 0, 90.0),
    Sketcher.Constraint("Diameter", 1, 32.0),
])
pocket1 = body.newObject("PartDesign::Pocket", "Pocket")
pocket1.Profile = sketch3
pocket1.Length = 8
pocket1.Reversed = True

# Sketch on XZ plane
sketch4 = body.newObject("Sketcher::SketchObject", "Sketch003")
sketch4.AttachmentSupport = (doc.getObject("XZ_Plane"), [""])
sketch4.MapMode = "FlatFace"
sketch4.addGeometry([
    Part.Circle(V(0, 31, 0), V(0, 0, 1), 10),  # 0
    Part.Circle(V(-24, 19, 0), V(0, 0, 1), 10),  # 1
    Part.Circle(V(-30, -7, 0), V(0, 0, 1), 10),  # 2
    Part.Circle(V(-13, -28, 0), V(0, 0, 1), 10),  # 3
    Part.Circle(V(13, -28, 0), V(0, 0, 1), 10),  # 4
    Part.Circle(V(30, -7, 0), V(0, 0, 1), 10),  # 5
    Part.Circle(V(24, 19, 0), V(0, 0, 1), 10),  # 6
], False)
sketch4.addConstraint([
    Sketcher.Constraint("Equal", 0, 1),
    Sketcher.Constraint("Equal", 1, 2),
    Sketcher.Constraint("Equal", 2, 3),
    Sketcher.Constraint("Equal", 3, 4),
    Sketcher.Constraint("Equal", 4, 5),
    Sketcher.Constraint("Equal", 5, 6),
    Sketcher.Constraint("Symmetric", 3, 3, 4, 3, -2),
    Sketcher.Constraint("Symmetric", 2, 3, 5, 3, -2),
    Sketcher.Constraint("Symmetric", 1, 3, 6, 3, -2),
    Sketcher.Constraint("PointOnObject", 0, 3, -2),
    Sketcher.Constraint("Diameter", 0, 20.0),
    Sketcher.Constraint("DistanceY", -1, 1, 0, 3, 31.0),
    Sketcher.Constraint("DistanceY", 2, 3, -1, 1, 6.898149),
    Sketcher.Constraint("DistanceX", 2, 3, 1, 3, 5.985989),
    Sketcher.Constraint("DistanceX", 2, 3, 3, 3, 16.772369),
    Sketcher.Constraint("DistanceY", 3, 3, 1, 3, 47.258219),
    Sketcher.Constraint("DistanceX", 3, 3, 4, 3, 26.900792),
    Sketcher.Constraint("DistanceY", -1, 1, 1, 3, 19.328184),
])
pocket2 = body.newObject("PartDesign::Pocket", "Pocket001")
pocket2.Profile = sketch4
pocket2.Length = 25
pocket2.Reversed = True
doc.recompute()

chamfer = body.newObject("PartDesign::Chamfer", "Chamfer")
chamfer.Base = (pocket2, edges_at(pocket2, [(-45, 0, 0), (-45, -8, 0)]))
chamfer.Size = 2
doc.recompute()

fillet = body.newObject("PartDesign::Fillet", "Fillet")
fillet.Base = (chamfer, edges_at(chamfer, [(-16, -8, 0)]))
fillet.Radius = 3

doc.recompute()
